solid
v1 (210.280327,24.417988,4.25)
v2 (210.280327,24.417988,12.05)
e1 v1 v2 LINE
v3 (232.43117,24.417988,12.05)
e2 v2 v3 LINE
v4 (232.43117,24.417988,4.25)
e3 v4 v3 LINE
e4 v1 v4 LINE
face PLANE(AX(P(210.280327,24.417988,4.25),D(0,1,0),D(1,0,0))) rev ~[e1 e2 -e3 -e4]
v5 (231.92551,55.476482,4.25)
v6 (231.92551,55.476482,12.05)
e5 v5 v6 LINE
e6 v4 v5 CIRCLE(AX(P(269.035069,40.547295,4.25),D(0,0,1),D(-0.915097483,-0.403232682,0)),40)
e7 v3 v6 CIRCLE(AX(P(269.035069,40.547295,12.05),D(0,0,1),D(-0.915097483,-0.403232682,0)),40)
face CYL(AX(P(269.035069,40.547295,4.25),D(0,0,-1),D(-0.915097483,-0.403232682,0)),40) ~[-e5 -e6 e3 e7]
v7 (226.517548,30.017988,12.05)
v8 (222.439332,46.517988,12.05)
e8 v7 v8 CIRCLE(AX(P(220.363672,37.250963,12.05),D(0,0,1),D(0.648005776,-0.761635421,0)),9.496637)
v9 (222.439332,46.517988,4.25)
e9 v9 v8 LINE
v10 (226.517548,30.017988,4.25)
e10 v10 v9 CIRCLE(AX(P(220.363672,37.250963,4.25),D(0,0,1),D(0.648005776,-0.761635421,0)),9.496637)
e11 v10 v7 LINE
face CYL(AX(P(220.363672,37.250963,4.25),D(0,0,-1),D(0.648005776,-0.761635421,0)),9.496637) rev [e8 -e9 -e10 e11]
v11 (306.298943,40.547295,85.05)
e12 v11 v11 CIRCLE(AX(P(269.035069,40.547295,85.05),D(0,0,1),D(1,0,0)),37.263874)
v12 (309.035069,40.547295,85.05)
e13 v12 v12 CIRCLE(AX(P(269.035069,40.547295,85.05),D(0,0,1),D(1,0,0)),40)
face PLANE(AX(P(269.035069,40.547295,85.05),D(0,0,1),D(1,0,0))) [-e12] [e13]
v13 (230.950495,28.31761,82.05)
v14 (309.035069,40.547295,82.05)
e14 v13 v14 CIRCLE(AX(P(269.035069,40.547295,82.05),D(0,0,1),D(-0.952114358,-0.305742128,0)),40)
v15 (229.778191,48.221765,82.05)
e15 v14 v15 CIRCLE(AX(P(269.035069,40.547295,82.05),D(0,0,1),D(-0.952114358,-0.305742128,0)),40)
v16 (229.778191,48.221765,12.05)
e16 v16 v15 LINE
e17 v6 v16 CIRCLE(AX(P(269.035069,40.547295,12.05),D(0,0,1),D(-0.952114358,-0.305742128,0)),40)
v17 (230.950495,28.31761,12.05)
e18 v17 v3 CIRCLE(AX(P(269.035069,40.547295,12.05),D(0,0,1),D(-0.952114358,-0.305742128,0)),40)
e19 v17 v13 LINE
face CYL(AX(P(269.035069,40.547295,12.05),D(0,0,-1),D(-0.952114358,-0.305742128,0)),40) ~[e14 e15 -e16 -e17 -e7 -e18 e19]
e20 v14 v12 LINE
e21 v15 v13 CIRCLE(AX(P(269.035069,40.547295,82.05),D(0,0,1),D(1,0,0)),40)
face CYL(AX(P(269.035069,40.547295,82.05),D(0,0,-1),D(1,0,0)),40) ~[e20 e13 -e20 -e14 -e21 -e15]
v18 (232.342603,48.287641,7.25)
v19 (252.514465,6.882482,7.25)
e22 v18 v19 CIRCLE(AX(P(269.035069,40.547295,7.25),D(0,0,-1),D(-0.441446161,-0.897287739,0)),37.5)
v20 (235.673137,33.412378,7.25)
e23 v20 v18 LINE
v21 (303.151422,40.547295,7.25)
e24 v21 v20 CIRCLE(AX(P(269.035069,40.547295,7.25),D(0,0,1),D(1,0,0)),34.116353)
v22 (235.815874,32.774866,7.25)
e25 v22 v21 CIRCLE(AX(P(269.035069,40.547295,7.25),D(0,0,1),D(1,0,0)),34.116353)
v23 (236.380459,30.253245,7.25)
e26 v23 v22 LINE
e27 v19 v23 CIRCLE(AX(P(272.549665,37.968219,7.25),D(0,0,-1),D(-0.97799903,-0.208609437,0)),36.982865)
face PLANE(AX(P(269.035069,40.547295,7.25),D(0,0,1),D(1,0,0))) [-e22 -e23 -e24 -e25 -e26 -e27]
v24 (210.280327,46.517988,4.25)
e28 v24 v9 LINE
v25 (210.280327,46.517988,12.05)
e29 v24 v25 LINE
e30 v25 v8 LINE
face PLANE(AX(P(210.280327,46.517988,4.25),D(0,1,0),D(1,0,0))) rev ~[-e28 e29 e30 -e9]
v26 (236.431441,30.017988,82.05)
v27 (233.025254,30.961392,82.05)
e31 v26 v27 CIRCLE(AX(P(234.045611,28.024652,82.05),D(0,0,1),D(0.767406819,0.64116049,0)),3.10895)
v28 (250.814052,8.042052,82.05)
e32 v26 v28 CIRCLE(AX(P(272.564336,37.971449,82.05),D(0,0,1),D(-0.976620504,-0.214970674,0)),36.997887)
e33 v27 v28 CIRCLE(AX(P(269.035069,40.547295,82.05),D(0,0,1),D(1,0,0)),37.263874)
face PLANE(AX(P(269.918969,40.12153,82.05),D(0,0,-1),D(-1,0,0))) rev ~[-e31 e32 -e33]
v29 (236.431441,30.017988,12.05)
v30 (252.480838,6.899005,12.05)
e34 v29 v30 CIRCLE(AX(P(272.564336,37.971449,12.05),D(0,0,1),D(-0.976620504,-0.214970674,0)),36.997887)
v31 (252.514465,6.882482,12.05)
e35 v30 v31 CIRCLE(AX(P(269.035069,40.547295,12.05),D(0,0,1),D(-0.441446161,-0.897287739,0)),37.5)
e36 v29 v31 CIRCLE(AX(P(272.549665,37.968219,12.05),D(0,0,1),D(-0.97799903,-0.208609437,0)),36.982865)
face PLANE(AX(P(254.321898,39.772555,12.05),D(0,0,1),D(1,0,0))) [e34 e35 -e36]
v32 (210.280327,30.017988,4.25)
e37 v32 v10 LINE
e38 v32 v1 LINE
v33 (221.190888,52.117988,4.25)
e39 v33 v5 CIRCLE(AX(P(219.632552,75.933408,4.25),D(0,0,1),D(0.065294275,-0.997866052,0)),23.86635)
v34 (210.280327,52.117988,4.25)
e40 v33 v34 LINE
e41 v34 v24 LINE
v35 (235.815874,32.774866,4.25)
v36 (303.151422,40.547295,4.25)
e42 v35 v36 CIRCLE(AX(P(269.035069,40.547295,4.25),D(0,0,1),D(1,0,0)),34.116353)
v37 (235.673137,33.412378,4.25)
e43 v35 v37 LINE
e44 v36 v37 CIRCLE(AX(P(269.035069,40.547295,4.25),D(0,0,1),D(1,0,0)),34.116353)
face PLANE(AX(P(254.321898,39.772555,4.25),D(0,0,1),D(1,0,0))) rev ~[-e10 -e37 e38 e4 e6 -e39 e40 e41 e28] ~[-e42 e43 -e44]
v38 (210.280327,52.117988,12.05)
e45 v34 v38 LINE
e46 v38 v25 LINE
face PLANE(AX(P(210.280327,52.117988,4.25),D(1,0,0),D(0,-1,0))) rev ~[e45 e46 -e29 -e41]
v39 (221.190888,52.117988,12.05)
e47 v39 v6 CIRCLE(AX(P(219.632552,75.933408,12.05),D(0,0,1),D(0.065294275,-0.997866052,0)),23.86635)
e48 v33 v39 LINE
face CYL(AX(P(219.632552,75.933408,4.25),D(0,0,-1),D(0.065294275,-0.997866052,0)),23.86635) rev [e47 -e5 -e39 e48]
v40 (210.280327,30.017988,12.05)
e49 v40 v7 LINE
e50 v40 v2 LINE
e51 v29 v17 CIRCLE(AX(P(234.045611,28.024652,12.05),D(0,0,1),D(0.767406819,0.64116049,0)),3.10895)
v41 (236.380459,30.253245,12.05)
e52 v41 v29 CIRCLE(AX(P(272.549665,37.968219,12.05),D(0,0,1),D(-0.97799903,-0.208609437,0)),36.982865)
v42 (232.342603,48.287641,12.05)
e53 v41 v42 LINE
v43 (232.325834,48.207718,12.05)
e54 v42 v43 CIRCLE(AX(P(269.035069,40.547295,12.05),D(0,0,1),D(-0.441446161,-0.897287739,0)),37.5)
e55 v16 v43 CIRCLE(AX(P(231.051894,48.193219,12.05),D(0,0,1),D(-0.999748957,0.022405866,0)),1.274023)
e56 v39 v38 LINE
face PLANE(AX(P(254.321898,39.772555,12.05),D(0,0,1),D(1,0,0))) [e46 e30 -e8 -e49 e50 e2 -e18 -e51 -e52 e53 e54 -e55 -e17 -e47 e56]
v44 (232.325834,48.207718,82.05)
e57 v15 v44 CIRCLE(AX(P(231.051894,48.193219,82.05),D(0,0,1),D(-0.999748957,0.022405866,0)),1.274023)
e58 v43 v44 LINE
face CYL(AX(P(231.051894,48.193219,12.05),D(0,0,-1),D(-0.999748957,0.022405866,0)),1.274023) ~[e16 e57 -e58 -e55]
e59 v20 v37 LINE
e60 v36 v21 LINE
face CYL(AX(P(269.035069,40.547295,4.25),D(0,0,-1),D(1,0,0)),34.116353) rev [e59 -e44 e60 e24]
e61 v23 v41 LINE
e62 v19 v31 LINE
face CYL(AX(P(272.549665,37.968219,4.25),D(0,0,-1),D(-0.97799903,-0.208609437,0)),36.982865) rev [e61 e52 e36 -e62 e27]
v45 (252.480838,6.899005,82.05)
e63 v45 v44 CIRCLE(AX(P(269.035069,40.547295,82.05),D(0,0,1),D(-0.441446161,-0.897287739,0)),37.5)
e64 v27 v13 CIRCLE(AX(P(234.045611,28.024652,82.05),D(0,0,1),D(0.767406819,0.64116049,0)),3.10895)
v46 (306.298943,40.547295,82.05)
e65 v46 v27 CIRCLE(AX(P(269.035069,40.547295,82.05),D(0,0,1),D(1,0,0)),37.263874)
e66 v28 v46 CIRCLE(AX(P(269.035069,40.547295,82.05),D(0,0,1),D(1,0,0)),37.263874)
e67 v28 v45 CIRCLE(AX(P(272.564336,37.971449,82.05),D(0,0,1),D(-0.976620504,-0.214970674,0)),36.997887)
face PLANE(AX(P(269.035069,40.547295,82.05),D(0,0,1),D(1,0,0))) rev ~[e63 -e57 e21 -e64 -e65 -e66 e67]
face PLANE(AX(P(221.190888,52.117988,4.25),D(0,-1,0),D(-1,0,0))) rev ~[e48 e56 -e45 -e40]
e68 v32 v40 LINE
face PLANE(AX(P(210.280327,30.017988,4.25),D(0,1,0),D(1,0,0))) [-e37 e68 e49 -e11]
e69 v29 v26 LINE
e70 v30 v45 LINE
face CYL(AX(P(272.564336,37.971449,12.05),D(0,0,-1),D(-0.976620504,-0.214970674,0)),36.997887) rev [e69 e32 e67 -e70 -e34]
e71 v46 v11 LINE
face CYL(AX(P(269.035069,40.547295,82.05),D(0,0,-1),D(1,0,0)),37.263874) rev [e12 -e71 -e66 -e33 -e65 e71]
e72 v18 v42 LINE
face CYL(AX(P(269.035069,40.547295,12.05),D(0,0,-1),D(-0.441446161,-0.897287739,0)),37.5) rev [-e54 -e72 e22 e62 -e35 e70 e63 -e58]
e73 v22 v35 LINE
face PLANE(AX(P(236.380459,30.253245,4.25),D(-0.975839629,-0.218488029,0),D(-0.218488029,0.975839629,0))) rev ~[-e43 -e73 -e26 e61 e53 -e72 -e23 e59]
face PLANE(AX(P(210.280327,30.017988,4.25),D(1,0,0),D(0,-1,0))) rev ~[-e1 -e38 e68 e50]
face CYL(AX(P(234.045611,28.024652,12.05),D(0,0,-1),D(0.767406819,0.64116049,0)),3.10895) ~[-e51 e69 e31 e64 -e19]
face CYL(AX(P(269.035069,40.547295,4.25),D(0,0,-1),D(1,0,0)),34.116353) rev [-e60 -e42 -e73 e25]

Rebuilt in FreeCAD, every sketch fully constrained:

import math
import FreeCAD as App
import Part
import Sketcher
from FreeCAD import Vector

doc = App.newDocument("Part")
body = doc.addObject("PartDesign::Body", "Body")

# Sketch on XY plane
sketch1 = doc.addObject("Sketcher::SketchObject", "Sketch")
body.addObject(sketch1)
sketch1.AttachmentSupport = (doc.XY_Plane, [""])
sketch1.MapMode = "FlatFace"
sketch1.AttachmentOffset = App.Placement(Vector(0, 0, 4.25), App.Rotation())
sketch1.addGeometry([
    Part.LineSegment(Vector(221, 52, 0), Vector(210, 52, 0)),  # 0
    Part.LineSegment(Vector(210, 52, 0), Vector(210, 47, 0)),  # 1
    Part.LineSegment(Vector(210, 47, 0), Vector(222, 47, 0)),  # 2
    Part.ArcOfCircle(Part.Circle(Vector(220, 37, 0), Vector(0, 0, 1), 9), math.radians(-50), math.radians(77)),  # 3
    Part.LineSegment(Vector(227, 30, 0), Vector(210, 30, 0)),  # 4
    Part.LineSegment(Vector(210, 30, 0), Vector(210, 24, 0)),  # 5
    Part.LineSegment(Vector(210, 24, 0), Vector(232, 24, 0)),  # 6
    Part.ArcOfCircle(Part.Circle(Vector(269, 41, 0), Vector(0, 0, 1), 40), math.radians(-156), math.radians(158)),  # 7
    Part.ArcOfCircle(Part.Circle(Vector(220, 76, 0), Vector(0, 0, 1), 24), math.radians(-86), math.radians(-59)),  # 8
    Part.ArcOfCircle(Part.Circle(Vector(269, 41, 0), Vector(0, 0, 1), 38), math.radians(-116), math.radians(168)),  # 9
    Part.ArcOfCircle(Part.Circle(Vector(273, 38, 0), Vector(0, 0, 1), 37), math.radians(-168), math.radians(-123)),  # 10
    Part.LineSegment(Vector(236, 30, 0), Vector(232, 48, 0)),  # 11
], False)
sketch1.addConstraint([
    Sketcher.Constraint("Coincident", 0, 2, 1, 1),
    Sketcher.Constraint("Coincident", 1, 2, 2, 1),
    Sketcher.Constraint("Coincident", 2, 2, 3, 2),
    Sketcher.Constraint("Coincident", 3, 1, 4, 1),
    Sketcher.Constraint("Coincident", 4, 2, 5, 1),
    Sketcher.Constraint("Coincident", 5, 2, 6, 1),
    Sketcher.Constraint("Coincident", 6, 2, 7, 1),
    Sketcher.Constraint("Coincident", 7, 2, 8, 2),
    Sketcher.Constraint("Coincident", 8, 1, 0, 1),
    Sketcher.Constraint("Coincident", 9, 1, 10, 2),
    Sketcher.Constraint("Coincident", 10, 1, 11, 1),
    Sketcher.Constraint("Coincident", 11, 2, 9, 2),
    Sketcher.Constraint("Horizontal", 0),
    Sketcher.Constraint("Vertical", 1),
    Sketcher.Constraint("Horizontal", 2),
    Sketcher.Constraint("Horizontal", 4),
    Sketcher.Constraint("Vertical", 5),
    Sketcher.Constraint("Horizontal", 6),
    Sketcher.Constraint("Coincident", 9, 3, 7, 3),
    Sketcher.Constraint("Vertical", 1, 2, 4, 2),
    Sketcher.Constraint("Equal", 1, 5),
    Sketcher.Constraint("Radius", 7, 40.0),
    Sketcher.Constraint("Radius", 9, 37.5),
    Sketcher.Constraint("DistanceY", 1, 2, 1, 1, 5.6),
    Sketcher.Constraint("DistanceY", 3, 1, 2, 2, 16.5),
    Sketcher.Constraint("Radius", 8, 23.86635),
    Sketcher.Constraint("Radius", 3, 9.496637),
    Sketcher.Constraint("Radius", 10, 36.982865),
    Sketcher.Constraint("Distance", 11, 18.480902),
    Sketcher.Constraint("DistanceX", 0, 2, 0, 1, 10.910561),
    Sketcher.Constraint("DistanceX", 4, 2, 4, 1, 16.237221),
    Sketcher.Constraint("DistanceX", 9, 1, 10, 3, 20.035201),
    Sketcher.Constraint("DistanceX", 2, 1, 2, 2, 12.159005),
    Sketcher.Constraint("DistanceX", 6, 1, 6, 2, 22.150843),
    Sketcher.Constraint("DistanceX", -1, 1, 7, 3, 269.035069),
    Sketcher.Constraint("DistanceY", -1, 1, 8, 3, 75.933408),
    Sketcher.Constraint("DistanceY", -1, 1, 10, 3, 37.968219),
    Sketcher.Constraint("DistanceY", -1, 1, 1, 2, 46.517988),
    Sketcher.Constraint("DistanceX", -1, 1, 2, 2, 222.439332),
    Sketcher.Constraint("DistanceX", -1, 1, 10, 1, 236.380459),
])
pad1 = doc.addObject("PartDesign::Pad", "Pad")
body.addObject(pad1)
pad1.Profile = sketch1
pad1.Length = 7.8

# Sketch on XY plane
sketch2 = doc.addObject("Sketcher::SketchObject", "Sketch001")
body.addObject(sketch2)
sketch2.AttachmentSupport = (doc.XY_Plane, [""])
sketch2.MapMode = "FlatFace"
sketch2.AttachmentOffset = App.Placement(Vector(0, 0, 12.05), App.Rotation())
sketch2.addGeometry([
    Part.ArcOfCircle(Part.Circle(Vector(269, 40.5, 0), Vector(0, 0, 1), 37.5), math.radians(-116), math.radians(168)),  # 0
    Part.ArcOfCircle(Part.Circle(Vector(272.6, 38, 0), Vector(0, 0, 1), 37), math.radians(-168), math.radians(-123)),  # 1
    Part.ArcOfCircle(Part.Circle(Vector(234, 28, 0), Vector(0, 0, 1), 3.1), math.radians(40), math.radians(175)),  # 2
    Part.ArcOfCircle(Part.Circle(Vector(269, 40.5, 0), Vector(0, 0, 1), 40), math.radians(-162), math.radians(169)),  # 3
    Part.ArcOfCircle(Part.Circle(Vector(231.1, 48.2, 0), Vector(0, 0, 1), 1.3), math.radians(179), math.radians(361)),  # 4
], False)
sketch2.addConstraint([
    Sketcher.Constraint("Coincident", 0, 1, 1, 2),
    Sketcher.Constraint("Coincident", 1, 1, 2, 1),
    Sketcher.Constraint("Coincident", 2, 2, 3, 1),
    Sketcher.Constraint("Coincident", 3, 2, 4, 1),
    Sketcher.Constraint("Coincident", 4, 2, 0, 2),
    Sketcher.Constraint("Coincident", 3, 3, 0, 3),
    Sketcher.Constraint("Radius", 3, 40.0),
    Sketcher.Constraint("Radius", 0, 37.5),
    Sketcher.Constraint("Radius", 2, 3.10895),
    Sketcher.Constraint("Radius", 1, 36.997887),
    Sketcher.Constraint("Radius", 4, 1.274023),
    Sketcher.Constraint("DistanceX", 2, 2, 4, 3, 0.101399),
    Sketcher.Constraint("DistanceY", 4, 3, 4, 2, 0.014499),
    Sketcher.Constraint("DistanceX", -1, 1, 0, 3, 269.035069),
    Sketcher.Constraint("DistanceY", -1, 1, 1, 3, 37.971449),
    Sketcher.Constraint("DistanceX", -1, 1, 2, 3, 234.045611),
    Sketcher.Constraint("DistanceY", -1, 1, 2, 3, 28.024652),
    Sketcher.Constraint("DistanceY", -1, 1, 4, 3, 48.193219),
    Sketcher.Constraint("DistanceX", -1, 1, 0, 1, 252.480838),
])
pad2 = doc.addObject("PartDesign::Pad", "Pad001")
body.addObject(pad2)
pad2.Profile = sketch2
pad2.Length = 70

# Sketch on XY plane
sketch3 = doc.addObject("Sketcher::SketchObject", "Sketch002")
body.addObject(sketch3)
sketch3.AttachmentSupport = (doc.XY_Plane, [""])
sketch3.MapMode = "FlatFace"
sketch3.AttachmentOffset = App.Placement(Vector(0, 0, 82.05), App.Rotation())
sketch3.addGeometry([
    Part.Circle(Vector(269, 41, 0), Vector(0, 0, 1), 40),
    Part.Circle(Vector(269, 41, 0), Vector(0, 0, 1), 37),
], False)
sketch3.addConstraint([
    Sketcher.Constraint("Coincident", 1, 3, 0, 3),
    Sketcher.Constraint("Diameter", 0, 80.0),
    Sketcher.Constraint("Diameter", 1, 74.527748),
    Sketcher.Constraint("DistanceX", -1, 1, 0, 3, 269.035069),
    Sketcher.Constraint("DistanceY", -1, 1, 0, 3, 40.547295),
])
pad3 = doc.addObject("PartDesign::Pad", "Pad002")
body.addObject(pad3)
pad3.Profile = sketch3
pad3.Length = 3

# Sketch on XY plane
sketch4 = doc.addObject("Sketcher::SketchObject", "Sketch003")
body.addObject(sketch4)
sketch4.AttachmentSupport = (doc.XY_Plane, [""])
sketch4.MapMode = "FlatFace"
sketch4.AttachmentOffset = App.Placement(Vector(0, 0, 4.25), App.Rotation())
sketch4.addGeometry([
    Part.Circle(Vector(269, 41, 0), Vector(0, 0, 1), 38),
    Part.Circle(Vector(269, 41, 0), Vector(0, 0, 1), 34),
], False)
sketch4.addConstraint([
    Sketcher.Constraint("Coincident", 1, 3, 0, 3),
    Sketcher.Constraint("Diameter", 0, 75.5),
    Sketcher.Constraint("Diameter", 1, 68.232706),
    Sketcher.Constraint("DistanceX", -1, 1, 0, 3, 269.035069),
    Sketcher.Constraint("DistanceY", -1, 1, 0, 3, 40.547295),
])
pad4 = doc.addObject("PartDesign::Pad", "Pad003")
body.addObject(pad4)
pad4.Profile = sketch4
pad4.Length = 3

doc.recompute()
